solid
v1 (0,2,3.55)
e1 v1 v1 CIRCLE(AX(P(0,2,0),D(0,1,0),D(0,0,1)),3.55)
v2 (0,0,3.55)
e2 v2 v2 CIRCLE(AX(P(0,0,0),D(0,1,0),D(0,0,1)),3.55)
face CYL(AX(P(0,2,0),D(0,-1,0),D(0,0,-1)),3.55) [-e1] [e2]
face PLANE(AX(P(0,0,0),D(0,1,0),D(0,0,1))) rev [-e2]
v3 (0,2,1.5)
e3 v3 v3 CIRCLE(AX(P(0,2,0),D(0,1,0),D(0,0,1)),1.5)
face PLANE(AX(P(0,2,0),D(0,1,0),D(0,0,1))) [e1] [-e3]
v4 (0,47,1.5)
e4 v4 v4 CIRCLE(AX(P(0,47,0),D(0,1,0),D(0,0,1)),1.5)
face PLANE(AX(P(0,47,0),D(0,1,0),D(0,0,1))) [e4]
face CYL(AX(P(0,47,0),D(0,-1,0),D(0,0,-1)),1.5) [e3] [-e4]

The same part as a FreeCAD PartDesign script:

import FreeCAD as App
import Part
import Sketcher
from FreeCAD import Vector

doc = App.newDocument("Part")
body = doc.addObject("PartDesign::Body", "Body")

# Sketch on XZ plane
sketch1 = body.newObject("Sketcher::SketchObject", "Sketch")
sketch1.AttachmentSupport = (doc.getObject("XZ_Plane"), [""])
sketch1.MapMode = "FlatFace"
sketch1.addGeometry(Part.Circle(Vector(0, 0, 0), Vector(0, 0, 1), 3.5), False)
sketch1.addConstraint(Sketcher.Constraint("Coincident", 0, 3, -1, 1))
sketch1.addConstraint(Sketcher.Constraint("Diameter", 0, 7.1))
pad1 = body.newObject("PartDesign::Pad", "Pad")
pad1.Profile = sketch1
pad1.Length = 2
pad1.Reversed = True

# Sketch on XZ plane
sketch2 = body.newObject("Sketcher::SketchObject", "Sketch001")
sketch2.AttachmentSupport = (doc.getObject("XZ_Plane"), [""])
sketch2.MapMode = "FlatFace"
sketch2.AttachmentOffset = App.Placement(Vector(0, 0, -2), App.Rotation())
sketch2.addGeometry(Part.Circle(Vector(0, 0, 0), Vector(0, 0, 1), 1.5), False)
sketch2.addConstraint(Sketcher.Constraint("Coincident", 0, 3, -1, 1))
sketch2.addConstraint(Sketcher.Constraint("Diameter", 0, 3.0))
pad2 = body.newObject("PartDesign::Pad", "Pad001")
pad2.Profile = sketch2
pad2.Length = 45
pad2.Reversed = True

doc.recompute()
